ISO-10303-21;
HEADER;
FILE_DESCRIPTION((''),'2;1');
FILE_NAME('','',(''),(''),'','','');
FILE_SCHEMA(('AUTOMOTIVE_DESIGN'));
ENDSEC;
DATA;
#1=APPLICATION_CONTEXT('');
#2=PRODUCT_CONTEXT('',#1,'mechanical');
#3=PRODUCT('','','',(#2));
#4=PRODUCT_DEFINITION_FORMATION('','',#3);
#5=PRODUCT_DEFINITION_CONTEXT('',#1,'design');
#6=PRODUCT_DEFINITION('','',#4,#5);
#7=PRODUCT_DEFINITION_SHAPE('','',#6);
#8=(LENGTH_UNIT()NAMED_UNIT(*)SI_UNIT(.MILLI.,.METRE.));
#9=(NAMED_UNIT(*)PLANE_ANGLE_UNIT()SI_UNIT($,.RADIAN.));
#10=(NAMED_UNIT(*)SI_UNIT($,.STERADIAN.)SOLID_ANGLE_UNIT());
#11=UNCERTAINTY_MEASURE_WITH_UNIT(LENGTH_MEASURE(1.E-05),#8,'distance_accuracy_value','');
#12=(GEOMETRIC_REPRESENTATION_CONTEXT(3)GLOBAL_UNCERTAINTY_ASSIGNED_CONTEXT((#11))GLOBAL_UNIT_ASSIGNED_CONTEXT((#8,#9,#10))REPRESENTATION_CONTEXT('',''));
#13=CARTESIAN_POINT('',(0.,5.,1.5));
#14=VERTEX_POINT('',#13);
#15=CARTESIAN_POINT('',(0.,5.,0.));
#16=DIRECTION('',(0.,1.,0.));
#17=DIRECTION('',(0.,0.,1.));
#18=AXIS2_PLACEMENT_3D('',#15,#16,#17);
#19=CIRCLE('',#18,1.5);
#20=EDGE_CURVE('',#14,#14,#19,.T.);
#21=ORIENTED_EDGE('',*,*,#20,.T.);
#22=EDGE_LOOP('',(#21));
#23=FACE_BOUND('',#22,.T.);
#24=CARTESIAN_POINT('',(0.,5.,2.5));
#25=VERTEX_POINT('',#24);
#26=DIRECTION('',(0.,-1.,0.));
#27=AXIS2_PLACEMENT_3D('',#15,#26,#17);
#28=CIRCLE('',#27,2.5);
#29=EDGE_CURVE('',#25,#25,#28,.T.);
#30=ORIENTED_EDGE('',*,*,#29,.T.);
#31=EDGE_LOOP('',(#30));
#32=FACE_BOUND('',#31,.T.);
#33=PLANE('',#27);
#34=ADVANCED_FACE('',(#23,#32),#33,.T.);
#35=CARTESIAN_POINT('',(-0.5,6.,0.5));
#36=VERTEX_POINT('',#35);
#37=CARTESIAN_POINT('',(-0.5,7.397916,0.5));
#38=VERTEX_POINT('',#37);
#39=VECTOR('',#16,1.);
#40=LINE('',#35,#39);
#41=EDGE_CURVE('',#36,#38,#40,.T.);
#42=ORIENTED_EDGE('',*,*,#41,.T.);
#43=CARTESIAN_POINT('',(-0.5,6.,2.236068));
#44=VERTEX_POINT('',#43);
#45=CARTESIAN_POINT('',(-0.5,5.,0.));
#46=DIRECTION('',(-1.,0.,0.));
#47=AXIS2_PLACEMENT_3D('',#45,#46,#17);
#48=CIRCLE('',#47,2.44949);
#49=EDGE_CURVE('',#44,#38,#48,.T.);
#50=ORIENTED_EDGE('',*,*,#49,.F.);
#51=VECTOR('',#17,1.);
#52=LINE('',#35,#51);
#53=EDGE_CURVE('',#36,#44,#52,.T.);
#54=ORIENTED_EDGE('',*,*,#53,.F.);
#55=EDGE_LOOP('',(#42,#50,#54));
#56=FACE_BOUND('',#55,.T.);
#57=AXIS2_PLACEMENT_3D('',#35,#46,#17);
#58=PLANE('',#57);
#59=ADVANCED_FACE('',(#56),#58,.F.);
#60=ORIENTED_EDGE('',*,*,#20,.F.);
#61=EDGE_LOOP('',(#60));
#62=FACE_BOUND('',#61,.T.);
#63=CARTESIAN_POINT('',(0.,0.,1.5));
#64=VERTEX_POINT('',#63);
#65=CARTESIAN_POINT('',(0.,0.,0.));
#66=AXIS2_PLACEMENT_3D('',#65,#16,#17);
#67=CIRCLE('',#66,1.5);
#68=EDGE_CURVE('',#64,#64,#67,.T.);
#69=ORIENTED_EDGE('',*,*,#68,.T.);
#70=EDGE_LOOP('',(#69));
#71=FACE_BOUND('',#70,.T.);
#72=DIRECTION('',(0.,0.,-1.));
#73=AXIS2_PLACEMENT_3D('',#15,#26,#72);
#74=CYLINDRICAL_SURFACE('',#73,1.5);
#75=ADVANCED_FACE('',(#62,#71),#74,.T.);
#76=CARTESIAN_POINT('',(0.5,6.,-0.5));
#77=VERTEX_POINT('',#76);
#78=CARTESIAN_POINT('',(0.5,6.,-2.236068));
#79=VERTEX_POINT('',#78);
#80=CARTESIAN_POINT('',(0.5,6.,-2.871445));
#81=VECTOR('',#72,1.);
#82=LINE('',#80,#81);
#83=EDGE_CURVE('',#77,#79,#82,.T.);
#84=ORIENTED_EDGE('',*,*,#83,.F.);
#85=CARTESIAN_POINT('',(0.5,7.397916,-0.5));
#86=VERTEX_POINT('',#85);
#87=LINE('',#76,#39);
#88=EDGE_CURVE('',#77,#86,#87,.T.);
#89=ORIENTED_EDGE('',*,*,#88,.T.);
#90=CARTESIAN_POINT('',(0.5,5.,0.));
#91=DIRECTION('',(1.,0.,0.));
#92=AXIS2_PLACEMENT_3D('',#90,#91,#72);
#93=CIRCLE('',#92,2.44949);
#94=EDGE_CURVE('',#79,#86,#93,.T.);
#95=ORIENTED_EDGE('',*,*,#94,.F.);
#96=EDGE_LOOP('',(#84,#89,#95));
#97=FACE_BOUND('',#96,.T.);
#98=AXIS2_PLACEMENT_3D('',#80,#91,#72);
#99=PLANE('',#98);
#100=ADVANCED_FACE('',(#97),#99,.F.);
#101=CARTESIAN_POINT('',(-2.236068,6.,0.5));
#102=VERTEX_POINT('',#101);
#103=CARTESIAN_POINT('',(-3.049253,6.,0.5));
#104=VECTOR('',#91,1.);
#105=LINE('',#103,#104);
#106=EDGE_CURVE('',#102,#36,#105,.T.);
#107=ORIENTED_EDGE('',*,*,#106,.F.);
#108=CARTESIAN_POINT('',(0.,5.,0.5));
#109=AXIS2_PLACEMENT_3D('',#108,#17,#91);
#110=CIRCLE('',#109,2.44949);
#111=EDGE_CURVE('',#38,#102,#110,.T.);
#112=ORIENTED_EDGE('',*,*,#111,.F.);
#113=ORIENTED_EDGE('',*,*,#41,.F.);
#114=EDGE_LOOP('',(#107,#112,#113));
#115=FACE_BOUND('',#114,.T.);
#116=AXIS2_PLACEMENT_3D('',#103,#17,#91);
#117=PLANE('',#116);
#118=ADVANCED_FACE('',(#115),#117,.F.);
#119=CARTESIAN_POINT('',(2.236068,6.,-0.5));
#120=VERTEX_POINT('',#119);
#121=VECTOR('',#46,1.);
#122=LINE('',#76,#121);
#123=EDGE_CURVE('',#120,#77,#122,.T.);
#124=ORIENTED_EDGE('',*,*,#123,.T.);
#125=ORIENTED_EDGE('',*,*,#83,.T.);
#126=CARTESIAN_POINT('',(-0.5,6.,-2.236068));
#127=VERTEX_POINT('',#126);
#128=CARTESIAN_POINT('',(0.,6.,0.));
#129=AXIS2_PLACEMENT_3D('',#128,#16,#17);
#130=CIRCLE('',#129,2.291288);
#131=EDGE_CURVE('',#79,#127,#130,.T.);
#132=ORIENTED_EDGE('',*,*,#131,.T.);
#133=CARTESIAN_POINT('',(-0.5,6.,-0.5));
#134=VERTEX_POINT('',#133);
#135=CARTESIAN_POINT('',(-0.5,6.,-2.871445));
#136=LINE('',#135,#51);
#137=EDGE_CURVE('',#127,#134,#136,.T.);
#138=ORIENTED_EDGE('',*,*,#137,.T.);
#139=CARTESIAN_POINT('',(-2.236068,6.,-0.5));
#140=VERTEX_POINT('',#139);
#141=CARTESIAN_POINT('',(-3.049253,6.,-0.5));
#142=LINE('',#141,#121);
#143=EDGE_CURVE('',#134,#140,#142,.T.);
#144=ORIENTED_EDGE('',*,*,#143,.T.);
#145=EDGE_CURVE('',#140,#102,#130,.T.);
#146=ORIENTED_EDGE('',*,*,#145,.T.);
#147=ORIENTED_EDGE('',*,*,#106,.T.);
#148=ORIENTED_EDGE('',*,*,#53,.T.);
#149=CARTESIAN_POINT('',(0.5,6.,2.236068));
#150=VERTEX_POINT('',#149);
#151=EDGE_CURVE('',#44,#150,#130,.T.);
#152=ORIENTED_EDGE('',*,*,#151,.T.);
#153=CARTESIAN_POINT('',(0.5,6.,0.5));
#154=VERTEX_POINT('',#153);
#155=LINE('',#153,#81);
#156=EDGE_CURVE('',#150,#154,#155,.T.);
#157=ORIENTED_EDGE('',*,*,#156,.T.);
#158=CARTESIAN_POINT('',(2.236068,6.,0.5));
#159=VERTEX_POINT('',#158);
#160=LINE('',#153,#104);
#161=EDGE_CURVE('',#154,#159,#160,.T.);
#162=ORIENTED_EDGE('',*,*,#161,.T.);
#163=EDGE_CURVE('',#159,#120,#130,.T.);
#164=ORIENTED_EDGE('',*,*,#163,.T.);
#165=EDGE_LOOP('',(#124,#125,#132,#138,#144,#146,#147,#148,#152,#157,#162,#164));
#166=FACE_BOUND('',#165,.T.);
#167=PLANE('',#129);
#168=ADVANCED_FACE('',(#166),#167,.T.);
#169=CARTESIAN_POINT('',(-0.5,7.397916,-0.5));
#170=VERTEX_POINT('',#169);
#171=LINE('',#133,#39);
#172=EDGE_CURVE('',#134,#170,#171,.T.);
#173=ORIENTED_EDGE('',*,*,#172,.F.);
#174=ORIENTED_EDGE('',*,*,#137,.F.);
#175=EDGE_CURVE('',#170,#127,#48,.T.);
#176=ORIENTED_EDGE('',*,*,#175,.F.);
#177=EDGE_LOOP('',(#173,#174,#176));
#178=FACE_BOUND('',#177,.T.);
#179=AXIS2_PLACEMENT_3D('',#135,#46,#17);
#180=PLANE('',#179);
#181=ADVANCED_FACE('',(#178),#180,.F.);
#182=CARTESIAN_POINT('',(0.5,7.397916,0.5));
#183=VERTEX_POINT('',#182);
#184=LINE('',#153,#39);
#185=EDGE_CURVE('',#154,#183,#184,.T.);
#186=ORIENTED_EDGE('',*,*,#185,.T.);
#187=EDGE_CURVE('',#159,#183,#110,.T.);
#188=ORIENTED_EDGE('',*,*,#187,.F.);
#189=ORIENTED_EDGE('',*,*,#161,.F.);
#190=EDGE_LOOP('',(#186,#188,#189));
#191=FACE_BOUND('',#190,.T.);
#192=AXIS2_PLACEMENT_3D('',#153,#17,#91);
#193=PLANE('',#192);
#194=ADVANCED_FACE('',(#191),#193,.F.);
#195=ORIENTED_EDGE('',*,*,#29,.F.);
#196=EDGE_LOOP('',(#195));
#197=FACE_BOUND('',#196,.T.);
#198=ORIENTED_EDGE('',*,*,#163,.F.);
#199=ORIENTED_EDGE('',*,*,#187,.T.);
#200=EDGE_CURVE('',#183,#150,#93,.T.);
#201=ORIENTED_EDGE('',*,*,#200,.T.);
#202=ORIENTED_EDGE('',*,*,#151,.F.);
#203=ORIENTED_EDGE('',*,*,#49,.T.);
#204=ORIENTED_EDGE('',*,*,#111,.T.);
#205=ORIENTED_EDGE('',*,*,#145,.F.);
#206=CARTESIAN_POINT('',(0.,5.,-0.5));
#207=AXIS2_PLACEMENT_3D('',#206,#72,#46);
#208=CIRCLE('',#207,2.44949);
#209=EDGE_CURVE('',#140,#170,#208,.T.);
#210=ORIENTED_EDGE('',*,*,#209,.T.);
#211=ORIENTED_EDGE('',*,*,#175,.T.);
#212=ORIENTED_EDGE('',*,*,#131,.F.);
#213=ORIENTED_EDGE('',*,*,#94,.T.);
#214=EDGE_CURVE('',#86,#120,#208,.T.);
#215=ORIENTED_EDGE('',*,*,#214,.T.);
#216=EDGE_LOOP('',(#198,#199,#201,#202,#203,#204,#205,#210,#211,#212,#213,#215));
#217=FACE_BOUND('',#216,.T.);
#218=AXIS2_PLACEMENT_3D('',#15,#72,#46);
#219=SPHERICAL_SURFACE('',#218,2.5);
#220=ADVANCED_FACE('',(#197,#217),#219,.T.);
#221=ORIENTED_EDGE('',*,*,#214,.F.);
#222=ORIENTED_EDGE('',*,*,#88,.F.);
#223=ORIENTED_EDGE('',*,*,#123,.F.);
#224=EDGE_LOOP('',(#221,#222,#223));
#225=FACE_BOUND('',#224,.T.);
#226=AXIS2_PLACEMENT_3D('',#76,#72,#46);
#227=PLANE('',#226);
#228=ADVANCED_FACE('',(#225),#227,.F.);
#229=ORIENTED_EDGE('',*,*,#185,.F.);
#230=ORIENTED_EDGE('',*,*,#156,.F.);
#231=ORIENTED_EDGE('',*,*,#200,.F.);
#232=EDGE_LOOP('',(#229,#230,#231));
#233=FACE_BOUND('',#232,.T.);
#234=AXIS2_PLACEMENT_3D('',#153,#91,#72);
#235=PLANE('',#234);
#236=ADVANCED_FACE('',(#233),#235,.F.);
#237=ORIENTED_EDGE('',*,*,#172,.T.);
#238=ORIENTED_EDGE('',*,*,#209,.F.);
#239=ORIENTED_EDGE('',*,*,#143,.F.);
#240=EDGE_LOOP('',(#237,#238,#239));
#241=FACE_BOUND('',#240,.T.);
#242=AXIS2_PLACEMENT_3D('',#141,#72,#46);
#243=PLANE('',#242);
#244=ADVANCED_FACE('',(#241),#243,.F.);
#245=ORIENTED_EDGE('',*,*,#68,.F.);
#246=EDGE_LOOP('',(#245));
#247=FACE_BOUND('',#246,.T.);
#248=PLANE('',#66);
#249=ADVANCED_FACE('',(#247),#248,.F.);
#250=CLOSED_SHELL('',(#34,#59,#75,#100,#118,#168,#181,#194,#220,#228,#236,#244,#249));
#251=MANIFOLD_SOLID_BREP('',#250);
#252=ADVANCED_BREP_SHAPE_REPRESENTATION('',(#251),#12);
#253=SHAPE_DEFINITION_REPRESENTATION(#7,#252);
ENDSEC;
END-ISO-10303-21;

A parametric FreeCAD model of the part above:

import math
import FreeCAD as App
import Part
import Sketcher

V = App.Vector

doc = App.newDocument("Part")
body = doc.addObject("PartDesign::Body", "Body")

# Sketch on XZ plane
sketch1 = body.newObject("Sketcher::SketchObject", "Sketch")
sketch1.AttachmentSupport = (doc.getObject("XZ_Plane"), [""])
sketch1.MapMode = "FlatFace"
sketch1.addGeometry(Part.Circle(V(0, 0, 0), V(0, 0, 1), 1.5), False)
sketch1.addConstraint([
    Sketcher.Constraint("Coincident", 0, 3, -1, 1),
    Sketcher.Constraint("Diameter", 0, 3.0),
])
pad1 = body.newObject("PartDesign::Pad", "Pad")
pad1.Profile = sketch1
pad1.Length = 5
pad1.Reversed = True

# Sketch on XZ plane
sketch2 = body.newObject("Sketcher::SketchObject", "Sketch001")
sketch2.AttachmentSupport = (doc.getObject("XZ_Plane"), [""])
sketch2.MapMode = "FlatFace"
sketch2.AttachmentOffset = App.Placement(V(0, 0, -5), App.Rotation())
sketch2.addGeometry([
    Part.LineSegment(V(0, -2.5, 0), V(0, 2.5, 0)),
    Part.ArcOfCircle(Part.Circle(V(0, 0, 0), V(0, 0, 1), 2.5), math.radians(-90), math.radians(90)),
], False)
sketch2.addConstraint([
    Sketcher.Constraint("Coincident", 0, 1, 1, 1),
    Sketcher.Constraint("Coincident", 1, 2, 0, 2),
    Sketcher.Constraint("Vertical", 0),
    Sketcher.Constraint("Coincident", 1, 3, -1, 1),
    Sketcher.Constraint("PointOnObject", 0, 1, -2),
    Sketcher.Constraint("Radius", 1, 2.5),
])
revolution = body.newObject("PartDesign::Revolution", "Revolution")
revolution.Profile = sketch2
revolution.ReferenceAxis = (sketch2, ["V_Axis"])
revolution.Angle = 180

# Sketch on XZ plane
sketch3 = body.newObject("Sketcher::SketchObject", "Sketch002")
sketch3.AttachmentSupport = (doc.getObject("XZ_Plane"), [""])
sketch3.MapMode = "FlatFace"
sketch3.AttachmentOffset = App.Placement(V(0, 0, -8), App.Rotation())
sketch3.addGeometry([
    Part.LineSegment(V(-0.5, 0.5, 0), V(-0.5, 3.128555, 0)),  # 0
    Part.LineSegment(V(-0.5, 3.128555, 0), V(0.5, 3.128555, 0)),  # 1
    Part.LineSegment(V(0.5, 3.128555, 0), V(0.5, 0.5, 0)),  # 2
    Part.LineSegment(V(0.5, 0.5, 0), V(2.950747, 0.5, 0)),  # 3
    Part.LineSegment(V(2.950747, 0.5, 0), V(2.950747, -0.5, 0)),  # 4
    Part.LineSegment(V(2.950747, -0.5, 0), V(0.5, -0.5, 0)),  # 5
    Part.LineSegment(V(0.5, -0.5, 0), V(0.5, -2.871445, 0)),  # 6
    Part.LineSegment(V(0.5, -2.871445, 0), V(-0.5, -2.871445, 0)),  # 7
    Part.LineSegment(V(-0.5, -2.871445, 0), V(-0.5, -0.5, 0)),  # 8
    Part.LineSegment(V(-0.5, -0.5, 0), V(-3.049253, -0.5, 0)),  # 9
    Part.LineSegment(V(-3.049253, -0.5, 0), V(-3.049253, 0.5, 0)),  # 10
    Part.LineSegment(V(-3.049253, 0.5, 0), V(-0.5, 0.5, 0)),  # 11
], False)
sketch3.addConstraint([
    Sketcher.Constraint("Coincident", 0, 2, 1, 1),
    Sketcher.Constraint("Coincident", 1, 2, 2, 1),
    Sketcher.Constraint("Coincident", 2, 2, 3, 1),
    Sketcher.Constraint("Coincident", 3, 2, 4, 1),
    Sketcher.Constraint("Coincident", 4, 2, 5, 1),
    Sketcher.Constraint("Coincident", 5, 2, 6, 1),
    Sketcher.Constraint("Coincident", 6, 2, 7, 1),
    Sketcher.Constraint("Coincident", 7, 2, 8, 1),
    Sketcher.Constraint("Coincident", 8, 2, 9, 1),
    Sketcher.Constraint("Coincident", 9, 2, 10, 1),
    Sketcher.Constraint("Coincident", 10, 2, 11, 1),
    Sketcher.Constraint("Coincident", 11, 2, 0, 1),
    Sketcher.Constraint("Vertical", 0),
    Sketcher.Constraint("Horizontal", 1),
    Sketcher.Constraint("Vertical", 2),
    Sketcher.Constraint("Horizontal", 3),
    Sketcher.Constraint("Vertical", 4),
    Sketcher.Constraint("Horizontal", 5),
    Sketcher.Constraint("Vertical", 6),
    Sketcher.Constraint("Horizontal", 7),
    Sketcher.Constraint("Vertical", 8),
    Sketcher.Constraint("Horizontal", 9),
    Sketcher.Constraint("Vertical", 10),
    Sketcher.Constraint("Horizontal", 11),
    Sketcher.Constraint("Symmetric", 2, 2, 8, 2, -1, 1),
    Sketcher.Constraint("Symmetric", 5, 2, 11, 2, -1, 1),
    Sketcher.Constraint("Symmetric", 5, 2, 8, 2, -2),
    Sketcher.Constraint("Equal", 7, 4),
    Sketcher.Constraint("DistanceX", 1, 1, 1, 2, 1.0),
    Sketcher.Constraint("DistanceY", 6, 2, 1, 2, 6.0),
    Sketcher.Constraint("DistanceX", 3, 1, 3, 2, 2.450747),
    Sketcher.Constraint("DistanceX", 9, 2, 9, 1, 2.549253),
    Sketcher.Constraint("DistanceY", 0, 1, 0, 2, 2.628555),
])
pocket1 = body.newObject("PartDesign::Pocket", "Pocket")
pocket1.Profile = sketch3
pocket1.Length = 2
pocket1.Reversed = True

doc.recompute()
